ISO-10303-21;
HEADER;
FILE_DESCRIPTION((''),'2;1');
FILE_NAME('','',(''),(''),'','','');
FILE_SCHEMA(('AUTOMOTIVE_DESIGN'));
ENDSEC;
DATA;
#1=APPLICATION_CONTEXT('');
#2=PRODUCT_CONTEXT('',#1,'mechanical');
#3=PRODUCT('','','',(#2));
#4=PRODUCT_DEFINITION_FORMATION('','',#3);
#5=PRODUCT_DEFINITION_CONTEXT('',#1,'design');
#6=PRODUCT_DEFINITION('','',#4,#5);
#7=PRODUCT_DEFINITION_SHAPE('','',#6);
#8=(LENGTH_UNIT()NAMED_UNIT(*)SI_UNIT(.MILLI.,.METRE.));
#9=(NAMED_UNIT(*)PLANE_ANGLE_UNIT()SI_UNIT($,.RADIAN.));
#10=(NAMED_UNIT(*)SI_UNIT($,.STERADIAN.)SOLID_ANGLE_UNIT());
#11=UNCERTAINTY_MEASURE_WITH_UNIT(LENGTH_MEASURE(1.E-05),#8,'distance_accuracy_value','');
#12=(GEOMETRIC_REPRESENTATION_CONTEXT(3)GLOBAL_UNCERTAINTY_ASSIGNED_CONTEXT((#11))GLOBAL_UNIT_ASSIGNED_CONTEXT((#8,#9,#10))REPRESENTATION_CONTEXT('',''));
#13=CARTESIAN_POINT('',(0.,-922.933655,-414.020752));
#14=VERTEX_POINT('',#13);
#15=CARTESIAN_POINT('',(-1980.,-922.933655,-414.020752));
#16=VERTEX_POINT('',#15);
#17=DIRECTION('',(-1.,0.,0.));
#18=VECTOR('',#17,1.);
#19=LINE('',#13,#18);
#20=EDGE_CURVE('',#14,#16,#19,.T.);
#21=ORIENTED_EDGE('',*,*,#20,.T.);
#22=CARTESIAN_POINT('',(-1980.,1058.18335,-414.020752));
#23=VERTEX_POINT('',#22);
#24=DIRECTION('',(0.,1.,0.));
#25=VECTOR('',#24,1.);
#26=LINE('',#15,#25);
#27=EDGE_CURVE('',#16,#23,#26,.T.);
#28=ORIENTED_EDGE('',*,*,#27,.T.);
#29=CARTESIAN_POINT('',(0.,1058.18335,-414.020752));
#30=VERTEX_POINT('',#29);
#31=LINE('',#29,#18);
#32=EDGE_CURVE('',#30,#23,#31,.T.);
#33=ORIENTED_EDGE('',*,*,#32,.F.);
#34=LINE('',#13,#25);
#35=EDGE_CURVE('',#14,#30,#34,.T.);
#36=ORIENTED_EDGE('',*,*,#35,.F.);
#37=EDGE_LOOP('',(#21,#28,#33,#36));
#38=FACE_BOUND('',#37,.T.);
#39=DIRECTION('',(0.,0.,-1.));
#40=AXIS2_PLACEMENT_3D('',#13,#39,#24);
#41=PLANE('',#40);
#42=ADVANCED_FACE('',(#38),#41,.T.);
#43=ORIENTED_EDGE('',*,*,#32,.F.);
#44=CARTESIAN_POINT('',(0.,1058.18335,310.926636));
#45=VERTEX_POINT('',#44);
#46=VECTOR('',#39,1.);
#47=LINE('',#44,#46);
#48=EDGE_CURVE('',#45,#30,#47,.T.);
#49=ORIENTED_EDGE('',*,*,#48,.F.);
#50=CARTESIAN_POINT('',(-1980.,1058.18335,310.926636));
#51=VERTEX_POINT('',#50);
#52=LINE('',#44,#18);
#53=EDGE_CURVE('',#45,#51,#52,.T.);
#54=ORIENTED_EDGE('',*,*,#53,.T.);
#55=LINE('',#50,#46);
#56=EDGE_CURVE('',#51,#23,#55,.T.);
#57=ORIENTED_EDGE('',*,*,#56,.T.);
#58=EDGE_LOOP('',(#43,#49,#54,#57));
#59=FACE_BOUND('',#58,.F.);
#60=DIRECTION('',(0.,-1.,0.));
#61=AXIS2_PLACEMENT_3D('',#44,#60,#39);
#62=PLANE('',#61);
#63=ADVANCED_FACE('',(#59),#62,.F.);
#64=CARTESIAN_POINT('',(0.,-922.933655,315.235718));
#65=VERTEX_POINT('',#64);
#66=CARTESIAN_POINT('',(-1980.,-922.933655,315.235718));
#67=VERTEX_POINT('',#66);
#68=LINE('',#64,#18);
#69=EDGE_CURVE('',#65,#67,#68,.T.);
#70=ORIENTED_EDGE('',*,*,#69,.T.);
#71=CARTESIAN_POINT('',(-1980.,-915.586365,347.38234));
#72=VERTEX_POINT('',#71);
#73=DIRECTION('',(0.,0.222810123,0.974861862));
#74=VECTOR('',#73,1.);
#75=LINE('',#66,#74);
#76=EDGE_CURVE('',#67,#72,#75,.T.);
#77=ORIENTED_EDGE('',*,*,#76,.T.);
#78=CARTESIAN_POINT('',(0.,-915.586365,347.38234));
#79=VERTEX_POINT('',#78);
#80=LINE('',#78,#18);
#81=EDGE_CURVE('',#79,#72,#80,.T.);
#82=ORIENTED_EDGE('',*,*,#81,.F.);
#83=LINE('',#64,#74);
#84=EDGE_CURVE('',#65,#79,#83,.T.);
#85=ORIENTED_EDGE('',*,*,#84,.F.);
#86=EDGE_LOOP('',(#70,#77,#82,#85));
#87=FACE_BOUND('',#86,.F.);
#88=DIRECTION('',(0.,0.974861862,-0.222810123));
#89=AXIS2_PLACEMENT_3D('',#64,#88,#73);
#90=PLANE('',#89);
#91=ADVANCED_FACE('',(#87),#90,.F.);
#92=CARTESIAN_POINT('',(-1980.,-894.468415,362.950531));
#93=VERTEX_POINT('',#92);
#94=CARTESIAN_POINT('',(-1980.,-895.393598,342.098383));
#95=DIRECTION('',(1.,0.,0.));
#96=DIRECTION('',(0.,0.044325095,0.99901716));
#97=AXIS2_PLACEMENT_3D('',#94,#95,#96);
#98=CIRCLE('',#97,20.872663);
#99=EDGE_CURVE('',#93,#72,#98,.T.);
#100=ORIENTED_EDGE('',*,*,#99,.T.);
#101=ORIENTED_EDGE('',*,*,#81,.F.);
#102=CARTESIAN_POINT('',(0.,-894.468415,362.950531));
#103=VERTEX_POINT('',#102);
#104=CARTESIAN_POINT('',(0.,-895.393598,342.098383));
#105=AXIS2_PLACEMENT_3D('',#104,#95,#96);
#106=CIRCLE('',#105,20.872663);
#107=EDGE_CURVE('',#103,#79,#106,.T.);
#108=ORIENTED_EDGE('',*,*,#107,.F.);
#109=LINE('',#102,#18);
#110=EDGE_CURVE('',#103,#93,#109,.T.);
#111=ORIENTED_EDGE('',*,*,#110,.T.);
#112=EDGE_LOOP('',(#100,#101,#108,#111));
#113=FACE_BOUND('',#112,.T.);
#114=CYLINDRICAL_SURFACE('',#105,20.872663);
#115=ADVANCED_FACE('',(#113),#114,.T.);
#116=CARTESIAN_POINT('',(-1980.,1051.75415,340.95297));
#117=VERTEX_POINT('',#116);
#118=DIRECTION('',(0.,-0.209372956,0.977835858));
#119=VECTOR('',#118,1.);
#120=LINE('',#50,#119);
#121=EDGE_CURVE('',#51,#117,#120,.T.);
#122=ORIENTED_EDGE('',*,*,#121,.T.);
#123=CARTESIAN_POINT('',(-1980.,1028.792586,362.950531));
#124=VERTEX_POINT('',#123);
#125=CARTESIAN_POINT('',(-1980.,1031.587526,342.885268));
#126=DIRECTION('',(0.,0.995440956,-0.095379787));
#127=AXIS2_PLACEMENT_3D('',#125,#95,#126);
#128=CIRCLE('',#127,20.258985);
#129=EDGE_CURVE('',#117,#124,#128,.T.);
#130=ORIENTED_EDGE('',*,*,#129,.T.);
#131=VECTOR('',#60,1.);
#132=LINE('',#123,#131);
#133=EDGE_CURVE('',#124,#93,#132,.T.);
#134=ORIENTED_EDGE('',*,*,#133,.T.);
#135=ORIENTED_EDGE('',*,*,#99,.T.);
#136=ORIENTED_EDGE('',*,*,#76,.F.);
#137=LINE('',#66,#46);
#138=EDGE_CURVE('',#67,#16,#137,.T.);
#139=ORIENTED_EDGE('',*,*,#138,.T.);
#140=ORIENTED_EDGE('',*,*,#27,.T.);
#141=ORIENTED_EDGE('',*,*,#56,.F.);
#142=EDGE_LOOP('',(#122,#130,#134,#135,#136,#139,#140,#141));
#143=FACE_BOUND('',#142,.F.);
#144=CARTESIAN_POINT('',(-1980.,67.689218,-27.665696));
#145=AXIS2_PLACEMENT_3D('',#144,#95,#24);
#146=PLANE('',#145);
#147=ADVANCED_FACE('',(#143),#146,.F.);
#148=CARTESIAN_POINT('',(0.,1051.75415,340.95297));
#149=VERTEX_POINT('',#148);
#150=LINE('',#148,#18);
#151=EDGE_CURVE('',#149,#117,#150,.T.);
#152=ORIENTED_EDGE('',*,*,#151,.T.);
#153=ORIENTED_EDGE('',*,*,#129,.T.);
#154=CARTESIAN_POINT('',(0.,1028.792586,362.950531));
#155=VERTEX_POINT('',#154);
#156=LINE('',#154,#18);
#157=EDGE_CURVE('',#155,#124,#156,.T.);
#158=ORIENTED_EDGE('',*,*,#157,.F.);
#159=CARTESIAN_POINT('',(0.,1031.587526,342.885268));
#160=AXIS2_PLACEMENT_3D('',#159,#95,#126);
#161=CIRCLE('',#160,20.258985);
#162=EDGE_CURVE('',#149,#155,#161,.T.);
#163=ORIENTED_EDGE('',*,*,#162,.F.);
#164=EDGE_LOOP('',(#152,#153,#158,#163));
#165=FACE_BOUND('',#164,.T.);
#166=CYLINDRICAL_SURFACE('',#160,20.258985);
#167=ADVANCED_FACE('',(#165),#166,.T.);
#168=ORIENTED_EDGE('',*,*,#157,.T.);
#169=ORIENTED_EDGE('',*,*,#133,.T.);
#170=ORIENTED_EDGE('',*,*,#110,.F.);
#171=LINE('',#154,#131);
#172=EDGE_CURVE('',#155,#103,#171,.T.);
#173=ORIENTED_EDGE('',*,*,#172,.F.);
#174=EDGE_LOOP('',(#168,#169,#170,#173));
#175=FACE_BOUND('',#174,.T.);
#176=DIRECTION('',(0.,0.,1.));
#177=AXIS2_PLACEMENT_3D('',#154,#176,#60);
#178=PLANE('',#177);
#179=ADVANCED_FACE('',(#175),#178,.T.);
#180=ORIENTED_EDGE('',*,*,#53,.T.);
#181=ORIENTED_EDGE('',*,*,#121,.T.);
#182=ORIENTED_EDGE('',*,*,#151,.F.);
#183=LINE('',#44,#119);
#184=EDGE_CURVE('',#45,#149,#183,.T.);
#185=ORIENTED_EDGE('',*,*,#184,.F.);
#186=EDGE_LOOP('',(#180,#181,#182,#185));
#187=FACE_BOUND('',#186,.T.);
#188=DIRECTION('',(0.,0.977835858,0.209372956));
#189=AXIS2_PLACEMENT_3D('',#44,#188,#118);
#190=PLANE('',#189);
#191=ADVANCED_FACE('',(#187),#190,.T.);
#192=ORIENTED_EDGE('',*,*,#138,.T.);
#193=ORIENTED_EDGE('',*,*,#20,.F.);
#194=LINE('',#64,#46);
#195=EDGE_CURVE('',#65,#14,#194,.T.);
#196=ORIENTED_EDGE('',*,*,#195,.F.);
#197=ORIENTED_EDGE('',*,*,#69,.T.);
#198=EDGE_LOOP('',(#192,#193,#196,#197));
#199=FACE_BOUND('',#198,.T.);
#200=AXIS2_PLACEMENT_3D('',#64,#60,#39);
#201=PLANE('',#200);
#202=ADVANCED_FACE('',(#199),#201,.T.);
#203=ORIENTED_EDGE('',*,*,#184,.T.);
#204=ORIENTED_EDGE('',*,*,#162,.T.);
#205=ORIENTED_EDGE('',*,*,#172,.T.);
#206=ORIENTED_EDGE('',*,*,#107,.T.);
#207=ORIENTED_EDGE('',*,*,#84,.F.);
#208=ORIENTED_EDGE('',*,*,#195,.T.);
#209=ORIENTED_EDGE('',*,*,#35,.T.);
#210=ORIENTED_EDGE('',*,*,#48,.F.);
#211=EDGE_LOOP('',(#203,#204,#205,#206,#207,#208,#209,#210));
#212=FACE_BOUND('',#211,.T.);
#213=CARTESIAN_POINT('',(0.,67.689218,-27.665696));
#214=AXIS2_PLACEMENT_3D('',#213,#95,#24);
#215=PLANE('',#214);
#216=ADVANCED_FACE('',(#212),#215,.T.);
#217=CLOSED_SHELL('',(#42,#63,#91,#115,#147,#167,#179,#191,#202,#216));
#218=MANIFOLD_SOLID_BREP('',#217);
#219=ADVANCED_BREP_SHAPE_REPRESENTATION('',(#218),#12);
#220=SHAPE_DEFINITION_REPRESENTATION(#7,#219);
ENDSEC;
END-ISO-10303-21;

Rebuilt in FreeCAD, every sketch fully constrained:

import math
import FreeCAD as App
import Part
import Sketcher
from FreeCAD import Vector

doc = App.newDocument("Part")
params = doc.addObject("Spreadsheet::Sheet", "Params")
for row, (alias, value) in enumerate([
    ("pad1_length", "1980 mm"),
], start=1):
    params.set(f"A{row}", alias)
    params.set(f"B{row}", "=" + value)
    params.setAlias(f"B{row}", alias)

body = doc.addObject("PartDesign::Body", "Body")

sketch1 = doc.addObject("Sketcher::SketchObject", "Sketch")
body.addObject(sketch1)
sketch1.AttachmentSupport = (doc.YZ_Plane, [""])
sketch1.MapMode = "FlatFace"
sketch1.addGeometry([
    Part.LineSegment(Vector(1058.18335, 310.926636, 0), Vector(1051.75415, 340.95297, 0)),
    Part.ArcOfCircle(Part.Circle(Vector(1031.587526, 342.885268, 0), Vector(0, 0, 1), 20.258985), math.radians(-5.473179), math.radians(97.929848)),
    Part.LineSegment(Vector(1028.792586, 362.950531, 0), Vector(-894.468415, 362.950531, 0)),
    Part.ArcOfCircle(Part.Circle(Vector(-895.393598, 342.098383, 0), Vector(0, 0, 1), 20.872663), math.radians(87.459527), math.radians(165.335887)),
    Part.LineSegment(Vector(-915.586365, 347.38234, 0), Vector(-922.933655, 315.235718, 0)),
    Part.LineSegment(Vector(-922.933655, 315.235718, 0), Vector(-922.933655, -414.020752, 0)),
    Part.LineSegment(Vector(-922.933655, -414.020752, 0), Vector(1058.18335, -414.020752, 0)),
    Part.LineSegment(Vector(1058.18335, -414.020752, 0), Vector(1058.18335, 310.926636, 0)),
], False)
sketch1.addConstraint([
    Sketcher.Constraint("Coincident", 0, 2, 1, 1),
    Sketcher.Constraint("Coincident", 1, 2, 2, 1),
    Sketcher.Constraint("Coincident", 2, 2, 3, 1),
    Sketcher.Constraint("Coincident", 3, 2, 4, 1),
    Sketcher.Constraint("Coincident", 4, 2, 5, 1),
    Sketcher.Constraint("Coincident", 5, 2, 6, 1),
    Sketcher.Constraint("Coincident", 6, 2, 7, 1),
    Sketcher.Constraint("Coincident", 7, 2, 0, 1),
    Sketcher.Constraint("Horizontal", 2),
    Sketcher.Constraint("Vertical", 5),
    Sketcher.Constraint("Horizontal", 6),
    Sketcher.Constraint("Vertical", 7),
    Sketcher.Constraint("DistanceX", 2, 2, 2, 1, 1923.261001),
    Sketcher.Constraint("Radius", 1, 20.258985),
    Sketcher.Constraint("Radius", 3, 20.872663),
    Sketcher.Constraint("DistanceY", 5, 2, 5, 1, 729.25647),
    Sketcher.Constraint("DistanceY", 7, 1, 7, 2, 724.947388),
    Sketcher.Constraint("DistanceX", 0, 2, 6, 2, 6.4292),
    Sketcher.Constraint("DistanceX", 6, 1, 6, 2, 1981.117005),
    Sketcher.Constraint("DistanceX", -1, 1, 0, 2, 1051.75415),
    Sketcher.Constraint("DistanceY", -1, 1, 0, 2, 340.95297),
    Sketcher.Constraint("DistanceY", -1, 1, 1, 2, 362.950531),
    Sketcher.Constraint("DistanceY", -1, 1, 3, 2, 347.38234),
    Sketcher.Constraint("DistanceY", -1, 1, 4, 2, 315.235718),
    Sketcher.Constraint("DistanceX", 1, 2, 1, 3, 2.79494),
    Sketcher.Constraint("DistanceY", 3, 3, 1, 2, 20.852148),
])
pad1 = doc.addObject("PartDesign::Pad", "Pad")
body.addObject(pad1)
pad1.Profile = sketch1
pad1.setExpression("Length", "Params.pad1_length")
pad1.Reversed = True

doc.recompute()
